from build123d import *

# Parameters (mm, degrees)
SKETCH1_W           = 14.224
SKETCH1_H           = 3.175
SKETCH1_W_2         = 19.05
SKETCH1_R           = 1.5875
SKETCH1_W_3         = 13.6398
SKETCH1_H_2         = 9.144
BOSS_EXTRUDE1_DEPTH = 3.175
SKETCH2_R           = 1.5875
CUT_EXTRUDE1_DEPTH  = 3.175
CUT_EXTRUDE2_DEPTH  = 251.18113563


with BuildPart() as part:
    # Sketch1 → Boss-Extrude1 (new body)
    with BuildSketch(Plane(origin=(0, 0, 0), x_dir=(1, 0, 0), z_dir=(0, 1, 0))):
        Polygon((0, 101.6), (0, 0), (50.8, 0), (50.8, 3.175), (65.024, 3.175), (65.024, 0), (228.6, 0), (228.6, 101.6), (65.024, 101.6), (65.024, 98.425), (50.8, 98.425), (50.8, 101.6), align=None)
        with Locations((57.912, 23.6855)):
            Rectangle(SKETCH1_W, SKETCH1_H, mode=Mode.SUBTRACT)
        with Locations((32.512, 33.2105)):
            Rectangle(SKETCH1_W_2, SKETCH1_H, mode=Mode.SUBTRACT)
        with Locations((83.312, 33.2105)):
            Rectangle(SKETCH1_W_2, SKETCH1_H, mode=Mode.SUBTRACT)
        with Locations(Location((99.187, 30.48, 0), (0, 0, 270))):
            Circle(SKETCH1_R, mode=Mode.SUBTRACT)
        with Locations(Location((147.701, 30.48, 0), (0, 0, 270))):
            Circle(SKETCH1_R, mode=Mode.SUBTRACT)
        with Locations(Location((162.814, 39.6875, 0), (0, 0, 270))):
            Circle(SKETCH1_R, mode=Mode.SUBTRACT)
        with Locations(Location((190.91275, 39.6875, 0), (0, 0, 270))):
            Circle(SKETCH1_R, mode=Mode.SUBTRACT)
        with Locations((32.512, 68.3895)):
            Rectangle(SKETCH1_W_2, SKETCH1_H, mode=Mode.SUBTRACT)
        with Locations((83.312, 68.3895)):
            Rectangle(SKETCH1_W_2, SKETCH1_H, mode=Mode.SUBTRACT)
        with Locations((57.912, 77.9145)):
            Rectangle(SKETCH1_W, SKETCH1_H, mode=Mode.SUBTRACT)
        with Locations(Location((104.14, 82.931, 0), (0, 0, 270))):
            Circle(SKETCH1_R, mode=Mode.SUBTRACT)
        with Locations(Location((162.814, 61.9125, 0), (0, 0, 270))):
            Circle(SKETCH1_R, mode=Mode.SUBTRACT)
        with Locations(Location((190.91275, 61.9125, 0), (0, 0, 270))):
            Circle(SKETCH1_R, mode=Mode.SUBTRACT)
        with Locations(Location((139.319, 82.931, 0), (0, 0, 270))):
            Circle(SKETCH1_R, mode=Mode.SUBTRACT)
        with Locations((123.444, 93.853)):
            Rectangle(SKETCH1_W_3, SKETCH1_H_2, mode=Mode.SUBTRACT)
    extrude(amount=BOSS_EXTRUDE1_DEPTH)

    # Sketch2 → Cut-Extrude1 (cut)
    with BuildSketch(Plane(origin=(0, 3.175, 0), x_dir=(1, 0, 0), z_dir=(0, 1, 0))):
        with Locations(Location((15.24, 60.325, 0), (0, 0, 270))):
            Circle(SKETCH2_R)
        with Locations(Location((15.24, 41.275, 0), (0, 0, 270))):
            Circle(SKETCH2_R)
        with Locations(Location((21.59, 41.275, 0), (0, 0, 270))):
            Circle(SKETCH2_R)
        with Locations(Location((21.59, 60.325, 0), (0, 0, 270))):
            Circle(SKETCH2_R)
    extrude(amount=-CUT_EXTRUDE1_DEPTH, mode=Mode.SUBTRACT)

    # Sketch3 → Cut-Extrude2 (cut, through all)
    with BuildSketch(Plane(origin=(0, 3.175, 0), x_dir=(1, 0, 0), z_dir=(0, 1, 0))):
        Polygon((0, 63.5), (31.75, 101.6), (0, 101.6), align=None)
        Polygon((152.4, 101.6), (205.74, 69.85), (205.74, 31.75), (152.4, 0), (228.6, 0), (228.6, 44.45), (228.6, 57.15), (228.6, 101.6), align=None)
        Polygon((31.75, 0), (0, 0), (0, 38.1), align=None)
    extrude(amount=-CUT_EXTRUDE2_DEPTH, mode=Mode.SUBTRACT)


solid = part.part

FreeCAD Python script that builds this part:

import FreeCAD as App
import Part
import Sketcher
from FreeCAD import Vector
Q = App.Units.Quantity

doc = App.newDocument("Part")
body = doc.addObject("PartDesign::Body", "Body")

# Sketch on XZ plane
sketch1 = body.newObject("Sketcher::SketchObject", "Sketch")
sketch1.AttachmentSupport = (doc.getObject("XZ_Plane"), [""])
sketch1.MapMode = "FlatFace"
sketch1.addGeometry([
    Part.LineSegment(Vector(0, -101.6, 0), Vector(0, 0, 0)),  # 0
    Part.LineSegment(Vector(0, 0, 0), Vector(50.8, 0, 0)),  # 1
    Part.LineSegment(Vector(50.8, 0, 0), Vector(50.8, -3.2, 0)),  # 2
    Part.LineSegment(Vector(50.8, -3.2, 0), Vector(65, -3.2, 0)),  # 3
    Part.LineSegment(Vector(65, -3.2, 0), Vector(65, 0, 0)),  # 4
    Part.LineSegment(Vector(65, 0, 0), Vector(228.6, 0, 0)),  # 5
    Part.LineSegment(Vector(228.6, 0, 0), Vector(228.6, -101.6, 0)),  # 6
    Part.LineSegment(Vector(228.6, -101.6, 0), Vector(65, -101.6, 0)),  # 7
    Part.LineSegment(Vector(65, -101.6, 0), Vector(65, -98.4, 0)),  # 8
    Part.LineSegment(Vector(65, -98.4, 0), Vector(50.8, -98.4, 0)),  # 9
    Part.LineSegment(Vector(50.8, -98.4, 0), Vector(50.8, -101.6, 0)),  # 10
    Part.LineSegment(Vector(50.8, -101.6, 0), Vector(0, -101.6, 0)),  # 11
    Part.LineSegment(Vector(65, -22.1, 0), Vector(50.8, -22.1, 0)),  # 12
    Part.LineSegment(Vector(50.8, -22.1, 0), Vector(50.8, -25.3, 0)),  # 13
    Part.LineSegment(Vector(50.8, -25.3, 0), Vector(65, -25.3, 0)),  # 14
    Part.LineSegment(Vector(65, -25.3, 0), Vector(65, -22.1, 0)),  # 15
    Part.LineSegment(Vector(42, -31.6, 0), Vector(23, -31.6, 0)),  # 16
    Part.LineSegment(Vector(23, -31.6, 0), Vector(23, -34.8, 0)),  # 17
    Part.LineSegment(Vector(23, -34.8, 0), Vector(42, -34.8, 0)),  # 18
    Part.LineSegment(Vector(42, -34.8, 0), Vector(42, -31.6, 0)),  # 19
    Part.Circle(Vector(99.2, -30.5, 0), Vector(0, 0, 1), 1.6),  # 20
    Part.LineSegment(Vector(92.8, -31.6, 0), Vector(73.8, -31.6, 0)),  # 21
    Part.LineSegment(Vector(73.8, -31.6, 0), Vector(73.8, -34.8, 0)),  # 22
    Part.LineSegment(Vector(73.8, -34.8, 0), Vector(92.8, -34.8, 0)),  # 23
    Part.LineSegment(Vector(92.8, -34.8, 0), Vector(92.8, -31.6, 0)),  # 24
    Part.Circle(Vector(147.7, -30.5, 0), Vector(0, 0, 1), 1.6),  # 25
    Part.Circle(Vector(162.8, -39.7, 0), Vector(0, 0, 1), 1.6),  # 26
    Part.Circle(Vector(190.9, -39.7, 0), Vector(0, 0, 1), 1.6),  # 27
    Part.LineSegment(Vector(42, -66.8, 0), Vector(23, -66.8, 0)),  # 28
    Part.LineSegment(Vector(23, -66.8, 0), Vector(23, -70, 0)),  # 29
    Part.LineSegment(Vector(23, -70, 0), Vector(42, -70, 0)),  # 30
    Part.LineSegment(Vector(42, -70, 0), Vector(42, -66.8, 0)),  # 31
    Part.LineSegment(Vector(65, -76.3, 0), Vector(50.8, -76.3, 0)),  # 32
    Part.LineSegment(Vector(50.8, -76.3, 0), Vector(50.8, -79.5, 0)),  # 33
    Part.LineSegment(Vector(50.8, -79.5, 0), Vector(65, -79.5, 0)),  # 34
    Part.LineSegment(Vector(65, -79.5, 0), Vector(65, -76.3, 0)),  # 35
    Part.LineSegment(Vector(92.8, -66.8, 0), Vector(73.8, -66.8, 0)),  # 36
    Part.LineSegment(Vector(73.8, -66.8, 0), Vector(73.8, -70, 0)),  # 37
    Part.LineSegment(Vector(73.8, -70, 0), Vector(92.8, -70, 0)),  # 38
    Part.LineSegment(Vector(92.8, -70, 0), Vector(92.8, -66.8, 0)),  # 39
    Part.Circle(Vector(104.1, -82.9, 0), Vector(0, 0, 1), 1.6),  # 40
    Part.Circle(Vector(162.8, -61.9, 0), Vector(0, 0, 1), 1.6),  # 41
    Part.Circle(Vector(190.9, -61.9, 0), Vector(0, 0, 1), 1.6),  # 42
    Part.Circle(Vector(139.3, -82.9, 0), Vector(0, 0, 1), 1.6),  # 43
    Part.LineSegment(Vector(130.3, -89.3, 0), Vector(116.6, -89.3, 0)),  # 44
    Part.LineSegment(Vector(116.6, -89.3, 0), Vector(116.6, -98.4, 0)),  # 45
    Part.LineSegment(Vector(116.6, -98.4, 0), Vector(130.3, -98.4, 0)),  # 46
    Part.LineSegment(Vector(130.3, -98.4, 0), Vector(130.3, -89.3, 0)),  # 47
], False)
sketch1.addConstraint([
    Sketcher.Constraint("Coincident", 0, 2, 1, 1),
    Sketcher.Constraint("Coincident", 1, 2, 2, 1),
    Sketcher.Constraint("Coincident", 2, 2, 3, 1),
    Sketcher.Constraint("Coincident", 3, 2, 4, 1),
    Sketcher.Constraint("Coincident", 4, 2, 5, 1),
    Sketcher.Constraint("Coincident", 5, 2, 6, 1),
    Sketcher.Constraint("Coincident", 6, 2, 7, 1),
    Sketcher.Constraint("Coincident", 7, 2, 8, 1),
    Sketcher.Constraint("Coincident", 8, 2, 9, 1),
    Sketcher.Constraint("Coincident", 9, 2, 10, 1),
    Sketcher.Constraint("Coincident", 10, 2, 11, 1),
    Sketcher.Constraint("Coincident", 11, 2, 0, 1),
    Sketcher.Constraint("Coincident", 12, 2, 13, 1),
    Sketcher.Constraint("Coincident", 13, 2, 14, 1),
    Sketcher.Constraint("Coincident", 14, 2, 15, 1),
    Sketcher.Constraint("Coincident", 15, 2, 12, 1),
    Sketcher.Constraint("Coincident", 16, 2, 17, 1),
    Sketcher.Constraint("Coincident", 17, 2, 18, 1),
    Sketcher.Constraint("Coincident", 18, 2, 19, 1),
    Sketcher.Constraint("Coincident", 19, 2, 16, 1),
    Sketcher.Constraint("Coincident", 21, 2, 22, 1),
    Sketcher.Constraint("Coincident", 22, 2, 23, 1),
    Sketcher.Constraint("Coincident", 23, 2, 24, 1),
    Sketcher.Constraint("Coincident", 24, 2, 21, 1),
    Sketcher.Constraint("Coincident", 28, 2, 29, 1),
    Sketcher.Constraint("Coincident", 29, 2, 30, 1),
    Sketcher.Constraint("Coincident", 30, 2, 31, 1),
    Sketcher.Constraint("Coincident", 31, 2, 28, 1),
    Sketcher.Constraint("Coincident", 32, 2, 33, 1),
    Sketcher.Constraint("Coincident", 33, 2, 34, 1),
    Sketcher.Constraint("Coincident", 34, 2, 35, 1),
    Sketcher.Constraint("Coincident", 35, 2, 32, 1),
    Sketcher.Constraint("Coincident", 36, 2, 37, 1),
    Sketcher.Constraint("Coincident", 37, 2, 38, 1),
    Sketcher.Constraint("Coincident", 38, 2, 39, 1),
    Sketcher.Constraint("Coincident", 39, 2, 36, 1),
    Sketcher.Constraint("Coincident", 44, 2, 45, 1),
    Sketcher.Constraint("Coincident", 45, 2, 46, 1),
    Sketcher.Constraint("Coincident", 46, 2, 47, 1),
    Sketcher.Constraint("Coincident", 47, 2, 44, 1),
    Sketcher.Constraint("Vertical", 0),
    Sketcher.Constraint("Horizontal", 1),
    Sketcher.Constraint("Vertical", 2),
    Sketcher.Constraint("Horizontal", 3),
    Sketcher.Constraint("Vertical", 4),
    Sketcher.Constraint("Horizontal", 5),
    Sketcher.Constraint("Vertical", 6),
    Sketcher.Constraint("Horizontal", 7),
    Sketcher.Constraint("Vertical", 8),
    Sketcher.Constraint("Horizontal", 9),
    Sketcher.Constraint("Vertical", 10),
    Sketcher.Constraint("Horizontal", 11),
    Sketcher.Constraint("Horizontal", 12),
    Sketcher.Constraint("Vertical", 13),
    Sketcher.Constraint("Horizontal", 14),
    Sketcher.Constraint("Vertical", 15),
    Sketcher.Constraint("Horizontal", 16),
    Sketcher.Constraint("Vertical", 17),
    Sketcher.Constraint("Horizontal", 18),
    Sketcher.Constraint("Vertical", 19),
    Sketcher.Constraint("Horizontal", 21),
    Sketcher.Constraint("Vertical", 22),
    Sketcher.Constraint("Horizontal", 23),
    Sketcher.Constraint("Vertical", 24),
    Sketcher.Constraint("Horizontal", 28),
    Sketcher.Constraint("Vertical", 29),
    Sketcher.Constraint("Horizontal", 30),
    Sketcher.Constraint("Vertical", 31),
    Sketcher.Constraint("Horizontal", 32),
    Sketcher.Constraint("Vertical", 33),
    Sketcher.Constraint("Horizontal", 34),
    Sketcher.Constraint("Vertical", 35),
    Sketcher.Constraint("Horizontal", 36),
    Sketcher.Constraint("Vertical", 37),
    Sketcher.Constraint("Horizontal", 38),
    Sketcher.Constraint("Vertical", 39),
    Sketcher.Constraint("Horizontal", 44),
    Sketcher.Constraint("Vertical", 45),
    Sketcher.Constraint("Horizontal", 46),
    Sketcher.Constraint("Vertical", 47),
    Sketcher.Constraint("Coincident", 0, 2, -1, 1),
    Sketcher.Constraint("Equal", 20, 25),
    Sketcher.Constraint("Equal", 25, 26),
    Sketcher.Constraint("Equal", 26, 27),
    Sketcher.Constraint("Equal", 27, 40),
    Sketcher.Constraint("Equal", 40, 41),
    Sketcher.Constraint("Equal", 41, 42),
    Sketcher.Constraint("Equal", 42, 43),
    Sketcher.Constraint("PointOnObject", 4, 2, -1),
    Sketcher.Constraint("Horizontal", 20, 3, 25, 3),
    Sketcher.Constraint("Horizontal", 26, 3, 27, 3),
    Sketcher.Constraint("Horizontal", 41, 3, 42, 3),
    Sketcher.Constraint("Horizontal", 40, 3, 43, 3),
    Sketcher.Constraint("Horizontal", 7, 2, 10, 2),
    Sketcher.Constraint("Horizontal", 19, 2, 21, 2),
    Sketcher.Constraint("Horizontal", 18, 2, 22, 2),
    Sketcher.Constraint("Horizontal", 31, 2, 36, 2),
    Sketcher.Constraint("Horizontal", 30, 2, 37, 2),
    Sketcher.Constraint("Horizontal", 9, 2, 45, 2),
    Sketcher.Constraint("Vertical", 26, 3, 41, 3),
    Sketcher.Constraint("Vertical", 27, 3, 42, 3),
    Sketcher.Constraint("Vertical", 4, 2, 7, 2),
    Sketcher.Constraint("Vertical", 2, 2, 9, 2),
    Sketcher.Constraint("Vertical", 10, 2, 12, 2),
    Sketcher.Constraint("Vertical", 8, 2, 14, 2),
    Sketcher.Constraint("Vertical", 17, 2, 28, 2),
    Sketcher.Constraint("Vertical", 19, 2, 30, 2),
    Sketcher.Constraint("Vertical", 13, 2, 32, 2),
    Sketcher.Constraint("Vertical", 15, 2, 34, 2),
    Sketcher.Constraint("Vertical", 22, 2, 36, 2),
    Sketcher.Constraint("Vertical", 24, 2, 38, 2),
    Sketcher.Constraint("Equal", 18, 21),
    Sketcher.Constraint("Equal", 4, 8),
    Sketcher.Constraint("Equal", 10, 13),
    Sketcher.Constraint("Equal", 15, 17),
    Sketcher.Constraint("Equal", 24, 29),
    Sketcher.Constraint("Equal", 31, 33),
    Sketcher.Constraint("DistanceX", 1, 1, 1, 2, Q("2 in")),
    Sketcher.Constraint("DistanceY", 0, 1, 0, 2, Q("4 in")),
    Sketcher.Constraint("Diameter", 20, Q("0.125 in")),
    Sketcher.Constraint("DistanceX", -1, 1, 5, 2, Q("9 in")),
    Sketcher.Constraint("DistanceX", 21, 2, 20, 3, Q("1 in")),
    Sketcher.Constraint("DistanceX", 3, 1, 3, 2, Q("0.56 in")),
    Sketcher.Constraint("DistanceX", 16, 2, 16, 1, Q("0.75 in")),
    Sketcher.Constraint("DistanceY", 45, 2, 45, 1, Q("0.36 in")),
    Sketcher.Constraint("DistanceY", 20, 3, -1, 1, Q("1.2 in")),
    Sketcher.Constraint("DistanceX", -1, 1, 40, 3, Q("4.1 in")),
    Sketcher.Constraint("DistanceY", 17, 2, 12, 2, Q("0.5 in")),
    Sketcher.Constraint("DistanceY", 33, 2, 31, 2, Q("0.5 in")),
    Sketcher.Constraint("DistanceX", 44, 2, 44, 1, Q("0.537 in")),
    Sketcher.Constraint("DistanceY", 2, 2, 2, 1, Q("0.125 in")),
    Sketcher.Constraint("DistanceX", -1, 1, 26, 3, Q("6.41 in")),
    Sketcher.Constraint("DistanceY", 12, 2, -1, 1, Q("0.87 in")),
    Sketcher.Constraint("DistanceY", 28, 2, -1, 1, Q("2.63 in")),
    Sketcher.Constraint("DistanceX", 20, 3, 25, 3, Q("1.91 in")),
    Sketcher.Constraint("DistanceX", 43, 3, 25, 3, Q("0.33 in")),
    Sketcher.Constraint("DistanceY", 40, 3, 2, 2, Q("3.14 in")),
    Sketcher.Constraint("DistanceX", 31, 2, 36, 2, Q("1.25 in")),
    Sketcher.Constraint("DistanceX", -1, 1, 20, 3, Q("3.905 in")),
    Sketcher.Constraint("DistanceY", 26, 3, -1, 1, Q("1.5625 in")),
    Sketcher.Constraint("DistanceY", 41, 3, -1, 1, Q("2.4375 in")),
    Sketcher.Constraint("DistanceX", 43, 3, 42, 3, Q("2.03125 in")),
    Sketcher.Constraint("DistanceX", -1, 1, 44, 2, Q("4.5915 in")),
])
pad1 = body.newObject("PartDesign::Pad", "Pad")
pad1.Profile = sketch1
pad1.Length = Q("0.125 in")
pad1.Reversed = True

# Sketch on XZ plane
sketch2 = body.newObject("Sketcher::SketchObject", "Sketch001")
sketch2.AttachmentSupport = (doc.getObject("XZ_Plane"), [""])
sketch2.MapMode = "FlatFace"
sketch2.AttachmentOffset = App.Placement(Vector(0, 0, -0.125 * 25.4), App.Rotation())
sketch2.addGeometry([
    Part.Circle(Vector(15.2, -60.3, 0), Vector(0, 0, 1), 1.6),
    Part.Circle(Vector(15.2, -41.3, 0), Vector(0, 0, 1), 1.6),
    Part.Circle(Vector(21.6, -41.3, 0), Vector(0, 0, 1), 1.6),
    Part.Circle(Vector(21.6, -60.3, 0), Vector(0, 0, 1), 1.6),
], False)
sketch2.addConstraint([
    Sketcher.Constraint("Equal", 0, 1),
    Sketcher.Constraint("Equal", 1, 2),
    Sketcher.Constraint("Equal", 2, 3),
    Sketcher.Constraint("Horizontal", 1, 3, 2, 3),
    Sketcher.Constraint("Horizontal", 0, 3, 3, 3),
    Sketcher.Constraint("Vertical", 0, 3, 1, 3),
    Sketcher.Constraint("Vertical", 2, 3, 3, 3),
    Sketcher.Constraint("Diameter", 0, Q("0.125 in")),
    Sketcher.Constraint("DistanceX", -1, 1, 0, 3, Q("0.6 in")),
    Sketcher.Constraint("DistanceX", -1, 1, 2, 3, Q("0.85 in")),
    Sketcher.Constraint("DistanceY", 0, 3, 1, 3, Q("0.75 in")),
    Sketcher.Constraint("DistanceY", 0, 3, -1, 1, Q("2.375 in")),
])
pocket1 = body.newObject("PartDesign::Pocket", "Pocket")
pocket1.Profile = sketch2
pocket1.Length = Q("0.125 in")
pocket1.Reversed = True

# Sketch on XZ plane
sketch3 = body.newObject("Sketcher::SketchObject", "Sketch002")
sketch3.AttachmentSupport = (doc.getObject("XZ_Plane"), [""])
sketch3.MapMode = "FlatFace"
sketch3.AttachmentOffset = App.Placement(Vector(0, 0, -0.125 * 25.4), App.Rotation())
sketch3.addGeometry([
    Part.LineSegment(Vector(0, -64, 0), Vector(32, -102, 0)),  # 0
    Part.LineSegment(Vector(32, -102, 0), Vector(0, -102, 0)),  # 1
    Part.LineSegment(Vector(0, -102, 0), Vector(0, -64, 0)),  # 2
    Part.LineSegment(Vector(152, -102, 0), Vector(206, -70, 0)),  # 3
    Part.LineSegment(Vector(206, -70, 0), Vector(206, -32, 0)),  # 4
    Part.LineSegment(Vector(206, -32, 0), Vector(152, 0, 0)),  # 5
    Part.LineSegment(Vector(152, 0, 0), Vector(229, 0, 0)),  # 6
    Part.LineSegment(Vector(229, 0, 0), Vector(229, -102, 0)),  # 7
    Part.LineSegment(Vector(229, -102, 0), Vector(152, -102, 0)),  # 8
    Part.LineSegment(Vector(0, 0, 0), Vector(32, 0, 0)),  # 9
    Part.LineSegment(Vector(32, 0, 0), Vector(0, -38, 0)),  # 10
    Part.LineSegment(Vector(0, -38, 0), Vector(0, 0, 0)),  # 11
], False)
sketch3.addConstraint([
    Sketcher.Constraint("Coincident", 0, 2, 1, 1),
    Sketcher.Constraint("Coincident", 1, 2, 2, 1),
    Sketcher.Constraint("Coincident", 2, 2, 0, 1),
    Sketcher.Constraint("Coincident", 3, 2, 4, 1),
    Sketcher.Constraint("Coincident", 4, 2, 5, 1),
    Sketcher.Constraint("Coincident", 5, 2, 6, 1),
    Sketcher.Constraint("Coincident", 6, 2, 7, 1),
    Sketcher.Constraint("Coincident", 7, 2, 8, 1),
    Sketcher.Constraint("Coincident", 8, 2, 3, 1),
    Sketcher.Constraint("Coincident", 9, 2, 10, 1),
    Sketcher.Constraint("Coincident", 10, 2, 11, 1),
    Sketcher.Constraint("Coincident", 11, 2, 9, 1),
    Sketcher.Constraint("Horizontal", 1),
    Sketcher.Constraint("Vertical", 2),
    Sketcher.Constraint("Vertical", 4),
    Sketcher.Constraint("Horizontal", 6),
    Sketcher.Constraint("Vertical", 7),
    Sketcher.Constraint("Horizontal", 8),
    Sketcher.Constraint("Horizontal", 9),
    Sketcher.Constraint("Vertical", 11),
    Sketcher.Constraint("Coincident", 11, 2, -1, 1),
    Sketcher.Constraint("PointOnObject", 1, 2, -2),
    Sketcher.Constraint("PointOnObject", 5, 2, -1),
    Sketcher.Constraint("Horizontal", 1, 2, 7, 2),
    Sketcher.Constraint("Vertical", 5, 2, 8, 2),
    Sketcher.Constraint("Vertical", 0, 2, 9, 2),
    Sketcher.Constraint("Equal", 2, 4),
    Sketcher.Constraint("Equal", 4, 11),
    Sketcher.Constraint("Equal", 3, 5),
    Sketcher.Constraint("DistanceX", 6, 1, 6, 2, Q("3 in")),
    Sketcher.Constraint("DistanceY", 7, 2, 7, 1, Q("4 in")),
    Sketcher.Constraint("DistanceY", 2, 1, 2, 2, Q("1.5 in")),
    Sketcher.Constraint("DistanceX", -1, 1, 5, 2, Q("6 in")),
    Sketcher.Constraint("DistanceX", 1, 2, 1, 1, Q("1.25 in")),
    Sketcher.Constraint("DistanceX", -1, 1, 3, 2, Q("8.1 in")),
])
pocket2 = body.newObject("PartDesign::Pocket", "Pocket001")
pocket2.Profile = sketch3
pocket2.Type = "ThroughAll"
pocket2.Reversed = True

doc.recompute()
